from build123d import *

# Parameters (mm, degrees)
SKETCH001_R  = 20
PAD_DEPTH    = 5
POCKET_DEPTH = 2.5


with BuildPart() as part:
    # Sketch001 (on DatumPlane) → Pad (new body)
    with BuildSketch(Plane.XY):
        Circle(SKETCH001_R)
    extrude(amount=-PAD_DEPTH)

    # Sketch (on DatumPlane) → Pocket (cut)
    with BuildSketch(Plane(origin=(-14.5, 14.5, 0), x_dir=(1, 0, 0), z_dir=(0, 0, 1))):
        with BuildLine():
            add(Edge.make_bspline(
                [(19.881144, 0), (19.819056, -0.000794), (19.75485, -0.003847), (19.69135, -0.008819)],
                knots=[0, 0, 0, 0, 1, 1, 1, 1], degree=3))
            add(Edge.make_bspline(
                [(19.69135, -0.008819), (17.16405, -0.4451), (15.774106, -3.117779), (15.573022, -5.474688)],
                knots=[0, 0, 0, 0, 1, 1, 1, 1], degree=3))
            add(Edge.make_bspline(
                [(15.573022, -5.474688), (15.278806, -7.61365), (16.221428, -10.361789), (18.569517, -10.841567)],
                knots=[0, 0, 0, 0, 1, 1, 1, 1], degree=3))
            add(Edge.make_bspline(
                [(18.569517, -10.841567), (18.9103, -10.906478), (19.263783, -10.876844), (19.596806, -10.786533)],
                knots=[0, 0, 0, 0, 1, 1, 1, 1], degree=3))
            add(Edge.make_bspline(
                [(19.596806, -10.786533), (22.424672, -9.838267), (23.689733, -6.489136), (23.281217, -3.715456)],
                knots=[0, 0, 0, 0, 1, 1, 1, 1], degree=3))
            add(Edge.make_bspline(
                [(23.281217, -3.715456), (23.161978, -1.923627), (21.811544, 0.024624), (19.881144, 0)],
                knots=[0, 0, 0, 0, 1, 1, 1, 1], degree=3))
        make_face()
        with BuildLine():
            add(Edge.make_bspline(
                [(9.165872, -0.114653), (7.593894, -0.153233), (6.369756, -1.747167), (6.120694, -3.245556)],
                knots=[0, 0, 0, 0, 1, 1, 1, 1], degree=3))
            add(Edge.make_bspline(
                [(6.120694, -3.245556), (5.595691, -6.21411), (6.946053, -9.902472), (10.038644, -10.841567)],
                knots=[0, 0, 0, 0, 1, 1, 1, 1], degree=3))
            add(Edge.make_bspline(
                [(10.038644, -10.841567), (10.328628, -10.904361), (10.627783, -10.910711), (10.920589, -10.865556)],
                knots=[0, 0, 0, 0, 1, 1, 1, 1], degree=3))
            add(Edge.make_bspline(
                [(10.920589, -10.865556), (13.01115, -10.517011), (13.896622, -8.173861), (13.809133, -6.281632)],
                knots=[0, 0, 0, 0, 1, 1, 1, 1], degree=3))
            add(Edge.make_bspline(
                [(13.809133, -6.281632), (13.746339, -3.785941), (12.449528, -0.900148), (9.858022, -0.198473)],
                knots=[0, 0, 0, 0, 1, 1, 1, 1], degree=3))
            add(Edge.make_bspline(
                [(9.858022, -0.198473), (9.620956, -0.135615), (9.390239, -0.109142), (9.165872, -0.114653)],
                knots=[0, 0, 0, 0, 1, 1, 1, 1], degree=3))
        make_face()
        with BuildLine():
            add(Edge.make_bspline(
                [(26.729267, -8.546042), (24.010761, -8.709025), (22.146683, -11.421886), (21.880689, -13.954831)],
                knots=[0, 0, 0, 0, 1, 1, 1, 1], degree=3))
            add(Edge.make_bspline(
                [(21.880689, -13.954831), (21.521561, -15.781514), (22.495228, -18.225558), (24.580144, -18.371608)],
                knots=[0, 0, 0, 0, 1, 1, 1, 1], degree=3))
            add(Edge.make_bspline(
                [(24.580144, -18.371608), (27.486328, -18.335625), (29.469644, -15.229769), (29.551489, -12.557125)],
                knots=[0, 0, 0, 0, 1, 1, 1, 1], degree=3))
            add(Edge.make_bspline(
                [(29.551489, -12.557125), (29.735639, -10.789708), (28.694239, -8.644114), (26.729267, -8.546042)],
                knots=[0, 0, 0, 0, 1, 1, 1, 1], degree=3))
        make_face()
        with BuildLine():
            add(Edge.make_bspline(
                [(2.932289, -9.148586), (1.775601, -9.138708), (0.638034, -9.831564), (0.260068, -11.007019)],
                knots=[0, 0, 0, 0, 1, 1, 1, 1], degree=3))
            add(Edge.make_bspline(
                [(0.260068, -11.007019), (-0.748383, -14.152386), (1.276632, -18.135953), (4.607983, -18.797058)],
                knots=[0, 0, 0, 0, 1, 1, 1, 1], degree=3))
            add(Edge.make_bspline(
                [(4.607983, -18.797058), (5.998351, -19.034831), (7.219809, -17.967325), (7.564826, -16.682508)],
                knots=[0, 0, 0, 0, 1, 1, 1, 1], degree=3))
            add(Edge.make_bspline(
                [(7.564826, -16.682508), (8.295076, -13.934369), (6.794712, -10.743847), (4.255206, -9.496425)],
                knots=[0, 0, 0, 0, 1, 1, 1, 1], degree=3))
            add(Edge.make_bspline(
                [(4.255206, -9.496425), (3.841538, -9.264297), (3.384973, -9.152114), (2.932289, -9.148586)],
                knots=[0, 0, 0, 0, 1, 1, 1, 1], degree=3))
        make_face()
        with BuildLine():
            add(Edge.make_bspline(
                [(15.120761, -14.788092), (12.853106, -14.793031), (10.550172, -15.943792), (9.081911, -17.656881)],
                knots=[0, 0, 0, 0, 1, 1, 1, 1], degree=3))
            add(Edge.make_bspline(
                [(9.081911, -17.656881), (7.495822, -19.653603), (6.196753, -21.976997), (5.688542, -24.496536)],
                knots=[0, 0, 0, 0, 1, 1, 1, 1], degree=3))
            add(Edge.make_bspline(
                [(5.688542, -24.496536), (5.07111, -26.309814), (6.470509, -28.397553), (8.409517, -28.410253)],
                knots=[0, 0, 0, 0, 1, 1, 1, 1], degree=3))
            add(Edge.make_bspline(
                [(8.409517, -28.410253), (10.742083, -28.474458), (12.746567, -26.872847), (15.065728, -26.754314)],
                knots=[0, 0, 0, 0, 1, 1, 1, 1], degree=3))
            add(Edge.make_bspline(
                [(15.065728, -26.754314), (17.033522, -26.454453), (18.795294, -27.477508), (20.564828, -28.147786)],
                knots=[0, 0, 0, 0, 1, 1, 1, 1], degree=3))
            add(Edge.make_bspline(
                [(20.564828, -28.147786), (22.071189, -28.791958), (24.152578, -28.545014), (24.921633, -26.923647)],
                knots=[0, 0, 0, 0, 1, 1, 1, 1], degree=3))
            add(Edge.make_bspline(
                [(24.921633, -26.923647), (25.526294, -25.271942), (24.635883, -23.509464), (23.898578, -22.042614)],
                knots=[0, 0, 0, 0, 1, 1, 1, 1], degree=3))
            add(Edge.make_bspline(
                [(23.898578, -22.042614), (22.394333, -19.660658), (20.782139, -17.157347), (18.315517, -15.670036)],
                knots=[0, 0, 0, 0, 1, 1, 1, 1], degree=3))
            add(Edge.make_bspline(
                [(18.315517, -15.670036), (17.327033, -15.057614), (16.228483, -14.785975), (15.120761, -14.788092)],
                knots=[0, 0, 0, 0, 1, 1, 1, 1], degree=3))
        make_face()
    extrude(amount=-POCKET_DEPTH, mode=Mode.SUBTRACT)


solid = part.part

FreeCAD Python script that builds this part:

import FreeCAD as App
import Part
import Sketcher
from FreeCAD import Vector
Q = App.Units.Quantity

doc = App.newDocument("Part")
body = doc.addObject("PartDesign::Body", "Body")

# Sketch on XY plane
sketch1 = doc.addObject("Sketcher::SketchObject", "Sketch")
body.addObject(sketch1)
sketch1.AttachmentSupport = (doc.XY_Plane, [""])
sketch1.MapMode = "FlatFace"
sketch1.addGeometry(Part.Circle(Vector(0, 0, 0), Vector(0, 0, 1), 20), False)
sketch1.addConstraint([
    Sketcher.Constraint("Coincident", 0, 3, -1, 1),
    Sketcher.Constraint("Diameter", 0, Q("40 mm")),
])
pad1 = doc.addObject("PartDesign::Pad", "Pad")
body.addObject(pad1)
pad1.Profile = sketch1
pad1.Length = 5
pad1.Reversed = True

# Sketch on XY plane
sketch2 = doc.addObject("Sketcher::SketchObject", "Sketch001")
body.addObject(sketch2)
sketch2.AttachmentSupport = (doc.XY_Plane, [""])
sketch2.MapMode = "FlatFace"
sketch2.addGeometry([
    Part.BSplineCurve([Vector(5.381144, 14.5, 0), Vector(5.319056, 14.499206, 0), Vector(5.25485, 14.496153, 0), Vector(5.19135, 14.491181, 0)], [4, 4], [0, 1], False, 3, [1, 1, 1, 1], False),  # 0
    Part.BSplineCurve([Vector(5.19135, 14.491181, 0), Vector(2.66405, 14.0549, 0), Vector(1.274106, 11.382221, 0), Vector(1.073022, 9.025312, 0)], [4, 4], [0, 1], False, 3, [1, 1, 1, 1], False),  # 1
    Part.BSplineCurve([Vector(1.073022, 9.025312, 0), Vector(0.778806, 6.88635, 0), Vector(1.721428, 4.138211, 0), Vector(4.069517, 3.658433, 0)], [4, 4], [0, 1], False, 3, [1, 1, 1, 1], False),  # 2
    Part.BSplineCurve([Vector(4.069517, 3.658433, 0), Vector(4.4103, 3.593522, 0), Vector(4.763783, 3.623156, 0), Vector(5.096806, 3.713467, 0)], [4, 4], [0, 1], False, 3, [1, 1, 1, 1], False),  # 3
    Part.BSplineCurve([Vector(5.096806, 3.713467, 0), Vector(7.924672, 4.661733, 0), Vector(9.189733, 8.010864, 0), Vector(8.781217, 10.784544, 0)], [4, 4], [0, 1], False, 3, [1, 1, 1, 1], False),  # 4
    Part.BSplineCurve([Vector(8.781217, 10.784544, 0), Vector(8.661978, 12.576373, 0), Vector(7.311544, 14.524624, 0), Vector(5.381144, 14.5, 0)], [4, 4], [0, 1], False, 3, [1, 1, 1, 1], False),  # 5
    Part.BSplineCurve([Vector(-5.334128, 14.385347, 0), Vector(-6.906106, 14.346767, 0), Vector(-8.130244, 12.752833, 0), Vector(-8.379306, 11.254444, 0)], [4, 4], [0, 1], False, 3, [1, 1, 1, 1], False),  # 6
    Part.BSplineCurve([Vector(-8.379306, 11.254444, 0), Vector(-8.904309, 8.28589, 0), Vector(-7.553947, 4.597528, 0), Vector(-4.461356, 3.658433, 0)], [4, 4], [0, 1], False, 3, [1, 1, 1, 1], False),  # 7
    Part.BSplineCurve([Vector(-4.461356, 3.658433, 0), Vector(-4.171372, 3.595639, 0), Vector(-3.872217, 3.589289, 0), Vector(-3.579411, 3.634444, 0)], [4, 4], [0, 1], False, 3, [1, 1, 1, 1], False),  # 8
    Part.BSplineCurve([Vector(-3.579411, 3.634444, 0), Vector(-1.48885, 3.982989, 0), Vector(-0.603378, 6.326139, 0), Vector(-0.690867, 8.218368, 0)], [4, 4], [0, 1], False, 3, [1, 1, 1, 1], False),  # 9
    Part.BSplineCurve([Vector(-0.690867, 8.218368, 0), Vector(-0.753661, 10.714059, 0), Vector(-2.050472, 13.599852, 0), Vector(-4.641978, 14.301527, 0)], [4, 4], [0, 1], False, 3, [1, 1, 1, 1], False),  # 10
    Part.BSplineCurve([Vector(-4.641978, 14.301527, 0), Vector(-4.879044, 14.364385, 0), Vector(-5.109761, 14.390858, 0), Vector(-5.334128, 14.385347, 0)], [4, 4], [0, 1], False, 3, [1, 1, 1, 1], False),  # 11
    Part.BSplineCurve([Vector(12.229267, 5.953958, 0), Vector(9.510761, 5.790975, 0), Vector(7.646683, 3.078114, 0), Vector(7.380689, 0.545169, 0)], [4, 4], [0, 1], False, 3, [1, 1, 1, 1], False),  # 12
    Part.BSplineCurve([Vector(7.380689, 0.545169, 0), Vector(7.021561, -1.281514, 0), Vector(7.995228, -3.725558, 0), Vector(10.080144, -3.871608, 0)], [4, 4], [0, 1], False, 3, [1, 1, 1, 1], False),  # 13
    Part.BSplineCurve([Vector(10.080144, -3.871608, 0), Vector(12.986328, -3.835625, 0), Vector(14.969644, -0.729769, 0), Vector(15.051489, 1.942875, 0)], [4, 4], [0, 1], False, 3, [1, 1, 1, 1], False),  # 14
    Part.BSplineCurve([Vector(15.051489, 1.942875, 0), Vector(15.235639, 3.710292, 0), Vector(14.194239, 5.855886, 0), Vector(12.229267, 5.953958, 0)], [4, 4], [0, 1], False, 3, [1, 1, 1, 1], False),  # 15
    Part.BSplineCurve([Vector(-11.567711, 5.351414, 0), Vector(-12.724399, 5.361292, 0), Vector(-13.861966, 4.668436, 0), Vector(-14.239932, 3.492981, 0)], [4, 4], [0, 1], False, 3, [1, 1, 1, 1], False),  # 16
    Part.BSplineCurve([Vector(-14.239932, 3.492981, 0), Vector(-15.248383, 0.347614, 0), Vector(-13.223368, -3.635953, 0), Vector(-9.892017, -4.297058, 0)], [4, 4], [0, 1], False, 3, [1, 1, 1, 1], False),  # 17
    Part.BSplineCurve([Vector(-9.892017, -4.297058, 0), Vector(-8.501649, -4.534831, 0), Vector(-7.280191, -3.467325, 0), Vector(-6.935174, -2.182508, 0)], [4, 4], [0, 1], False, 3, [1, 1, 1, 1], False),  # 18
    Part.BSplineCurve([Vector(-6.935174, -2.182508, 0), Vector(-6.204924, 0.565631, 0), Vector(-7.705288, 3.756153, 0), Vector(-10.244794, 5.003575, 0)], [4, 4], [0, 1], False, 3, [1, 1, 1, 1], False),  # 19
    Part.BSplineCurve([Vector(-10.244794, 5.003575, 0), Vector(-10.658462, 5.235703, 0), Vector(-11.115027, 5.347886, 0), Vector(-11.567711, 5.351414, 0)], [4, 4], [0, 1], False, 3, [1, 1, 1, 1], False),  # 20
    Part.BSplineCurve([Vector(0.620761, -0.288092, 0), Vector(-1.646894, -0.293031, 0), Vector(-3.949828, -1.443792, 0), Vector(-5.418089, -3.156881, 0)], [4, 4], [0, 1], False, 3, [1, 1, 1, 1], False),  # 21
    Part.BSplineCurve([Vector(-5.418089, -3.156881, 0), Vector(-7.004178, -5.153603, 0), Vector(-8.303247, -7.476997, 0), Vector(-8.811458, -9.996536, 0)], [4, 4], [0, 1], False, 3, [1, 1, 1, 1], False),  # 22
    Part.BSplineCurve([Vector(-8.811458, -9.996536, 0), Vector(-9.42889, -11.809814, 0), Vector(-8.029491, -13.897553, 0), Vector(-6.090483, -13.910253, 0)], [4, 4], [0, 1], False, 3, [1, 1, 1, 1], False),  # 23
    Part.BSplineCurve([Vector(-6.090483, -13.910253, 0), Vector(-3.757917, -13.974458, 0), Vector(-1.753433, -12.372847, 0), Vector(0.565728, -12.254314, 0)], [4, 4], [0, 1], False, 3, [1, 1, 1, 1], False),  # 24
    Part.BSplineCurve([Vector(0.565728, -12.254314, 0), Vector(2.533522, -11.954453, 0), Vector(4.295294, -12.977508, 0), Vector(6.064828, -13.647786, 0)], [4, 4], [0, 1], False, 3, [1, 1, 1, 1], False),  # 25
    Part.BSplineCurve([Vector(6.064828, -13.647786, 0), Vector(7.571189, -14.291958, 0), Vector(9.652578, -14.045014, 0), Vector(10.421633, -12.423647, 0)], [4, 4], [0, 1], False, 3, [1, 1, 1, 1], False),  # 26
    Part.BSplineCurve([Vector(10.421633, -12.423647, 0), Vector(11.026294, -10.771942, 0), Vector(10.135883, -9.009464, 0), Vector(9.398578, -7.542614, 0)], [4, 4], [0, 1], False, 3, [1, 1, 1, 1], False),  # 27
    Part.BSplineCurve([Vector(9.398578, -7.542614, 0), Vector(7.894333, -5.160658, 0), Vector(6.282139, -2.657347, 0), Vector(3.815517, -1.170036, 0)], [4, 4], [0, 1], False, 3, [1, 1, 1, 1], False),  # 28
    Part.BSplineCurve([Vector(3.815517, -1.170036, 0), Vector(2.827033, -0.557614, 0), Vector(1.728483, -0.285975, 0), Vector(0.620761, -0.288092, 0)], [4, 4], [0, 1], False, 3, [1, 1, 1, 1], False),  # 29
], False)
sketch2.addConstraint([
    Sketcher.Constraint("Block", 0),
    Sketcher.Constraint("Block", 1),
    Sketcher.Constraint("Block", 2),
    Sketcher.Constraint("Block", 3),
    Sketcher.Constraint("Block", 4),
    Sketcher.Constraint("Block", 5),
    Sketcher.Constraint("Block", 6),
    Sketcher.Constraint("Block", 7),
    Sketcher.Constraint("Block", 8),
    Sketcher.Constraint("Block", 9),
    Sketcher.Constraint("Block", 10),
    Sketcher.Constraint("Block", 11),
    Sketcher.Constraint("Block", 12),
    Sketcher.Constraint("Block", 13),
    Sketcher.Constraint("Block", 14),
    Sketcher.Constraint("Block", 15),
    Sketcher.Constraint("Block", 16),
    Sketcher.Constraint("Block", 17),
    Sketcher.Constraint("Block", 18),
    Sketcher.Constraint("Block", 19),
    Sketcher.Constraint("Block", 20),
    Sketcher.Constraint("Block", 21),
    Sketcher.Constraint("Block", 22),
    Sketcher.Constraint("Block", 23),
    Sketcher.Constraint("Block", 24),
    Sketcher.Constraint("Block", 25),
    Sketcher.Constraint("Block", 26),
    Sketcher.Constraint("Block", 27),
    Sketcher.Constraint("Block", 28),
    Sketcher.Constraint("Block", 29),
])
pocket1 = doc.addObject("PartDesign::Pocket", "Pocket")
body.addObject(pocket1)
pocket1.Profile = sketch2
pocket1.Length = 2.5

doc.recompute()
